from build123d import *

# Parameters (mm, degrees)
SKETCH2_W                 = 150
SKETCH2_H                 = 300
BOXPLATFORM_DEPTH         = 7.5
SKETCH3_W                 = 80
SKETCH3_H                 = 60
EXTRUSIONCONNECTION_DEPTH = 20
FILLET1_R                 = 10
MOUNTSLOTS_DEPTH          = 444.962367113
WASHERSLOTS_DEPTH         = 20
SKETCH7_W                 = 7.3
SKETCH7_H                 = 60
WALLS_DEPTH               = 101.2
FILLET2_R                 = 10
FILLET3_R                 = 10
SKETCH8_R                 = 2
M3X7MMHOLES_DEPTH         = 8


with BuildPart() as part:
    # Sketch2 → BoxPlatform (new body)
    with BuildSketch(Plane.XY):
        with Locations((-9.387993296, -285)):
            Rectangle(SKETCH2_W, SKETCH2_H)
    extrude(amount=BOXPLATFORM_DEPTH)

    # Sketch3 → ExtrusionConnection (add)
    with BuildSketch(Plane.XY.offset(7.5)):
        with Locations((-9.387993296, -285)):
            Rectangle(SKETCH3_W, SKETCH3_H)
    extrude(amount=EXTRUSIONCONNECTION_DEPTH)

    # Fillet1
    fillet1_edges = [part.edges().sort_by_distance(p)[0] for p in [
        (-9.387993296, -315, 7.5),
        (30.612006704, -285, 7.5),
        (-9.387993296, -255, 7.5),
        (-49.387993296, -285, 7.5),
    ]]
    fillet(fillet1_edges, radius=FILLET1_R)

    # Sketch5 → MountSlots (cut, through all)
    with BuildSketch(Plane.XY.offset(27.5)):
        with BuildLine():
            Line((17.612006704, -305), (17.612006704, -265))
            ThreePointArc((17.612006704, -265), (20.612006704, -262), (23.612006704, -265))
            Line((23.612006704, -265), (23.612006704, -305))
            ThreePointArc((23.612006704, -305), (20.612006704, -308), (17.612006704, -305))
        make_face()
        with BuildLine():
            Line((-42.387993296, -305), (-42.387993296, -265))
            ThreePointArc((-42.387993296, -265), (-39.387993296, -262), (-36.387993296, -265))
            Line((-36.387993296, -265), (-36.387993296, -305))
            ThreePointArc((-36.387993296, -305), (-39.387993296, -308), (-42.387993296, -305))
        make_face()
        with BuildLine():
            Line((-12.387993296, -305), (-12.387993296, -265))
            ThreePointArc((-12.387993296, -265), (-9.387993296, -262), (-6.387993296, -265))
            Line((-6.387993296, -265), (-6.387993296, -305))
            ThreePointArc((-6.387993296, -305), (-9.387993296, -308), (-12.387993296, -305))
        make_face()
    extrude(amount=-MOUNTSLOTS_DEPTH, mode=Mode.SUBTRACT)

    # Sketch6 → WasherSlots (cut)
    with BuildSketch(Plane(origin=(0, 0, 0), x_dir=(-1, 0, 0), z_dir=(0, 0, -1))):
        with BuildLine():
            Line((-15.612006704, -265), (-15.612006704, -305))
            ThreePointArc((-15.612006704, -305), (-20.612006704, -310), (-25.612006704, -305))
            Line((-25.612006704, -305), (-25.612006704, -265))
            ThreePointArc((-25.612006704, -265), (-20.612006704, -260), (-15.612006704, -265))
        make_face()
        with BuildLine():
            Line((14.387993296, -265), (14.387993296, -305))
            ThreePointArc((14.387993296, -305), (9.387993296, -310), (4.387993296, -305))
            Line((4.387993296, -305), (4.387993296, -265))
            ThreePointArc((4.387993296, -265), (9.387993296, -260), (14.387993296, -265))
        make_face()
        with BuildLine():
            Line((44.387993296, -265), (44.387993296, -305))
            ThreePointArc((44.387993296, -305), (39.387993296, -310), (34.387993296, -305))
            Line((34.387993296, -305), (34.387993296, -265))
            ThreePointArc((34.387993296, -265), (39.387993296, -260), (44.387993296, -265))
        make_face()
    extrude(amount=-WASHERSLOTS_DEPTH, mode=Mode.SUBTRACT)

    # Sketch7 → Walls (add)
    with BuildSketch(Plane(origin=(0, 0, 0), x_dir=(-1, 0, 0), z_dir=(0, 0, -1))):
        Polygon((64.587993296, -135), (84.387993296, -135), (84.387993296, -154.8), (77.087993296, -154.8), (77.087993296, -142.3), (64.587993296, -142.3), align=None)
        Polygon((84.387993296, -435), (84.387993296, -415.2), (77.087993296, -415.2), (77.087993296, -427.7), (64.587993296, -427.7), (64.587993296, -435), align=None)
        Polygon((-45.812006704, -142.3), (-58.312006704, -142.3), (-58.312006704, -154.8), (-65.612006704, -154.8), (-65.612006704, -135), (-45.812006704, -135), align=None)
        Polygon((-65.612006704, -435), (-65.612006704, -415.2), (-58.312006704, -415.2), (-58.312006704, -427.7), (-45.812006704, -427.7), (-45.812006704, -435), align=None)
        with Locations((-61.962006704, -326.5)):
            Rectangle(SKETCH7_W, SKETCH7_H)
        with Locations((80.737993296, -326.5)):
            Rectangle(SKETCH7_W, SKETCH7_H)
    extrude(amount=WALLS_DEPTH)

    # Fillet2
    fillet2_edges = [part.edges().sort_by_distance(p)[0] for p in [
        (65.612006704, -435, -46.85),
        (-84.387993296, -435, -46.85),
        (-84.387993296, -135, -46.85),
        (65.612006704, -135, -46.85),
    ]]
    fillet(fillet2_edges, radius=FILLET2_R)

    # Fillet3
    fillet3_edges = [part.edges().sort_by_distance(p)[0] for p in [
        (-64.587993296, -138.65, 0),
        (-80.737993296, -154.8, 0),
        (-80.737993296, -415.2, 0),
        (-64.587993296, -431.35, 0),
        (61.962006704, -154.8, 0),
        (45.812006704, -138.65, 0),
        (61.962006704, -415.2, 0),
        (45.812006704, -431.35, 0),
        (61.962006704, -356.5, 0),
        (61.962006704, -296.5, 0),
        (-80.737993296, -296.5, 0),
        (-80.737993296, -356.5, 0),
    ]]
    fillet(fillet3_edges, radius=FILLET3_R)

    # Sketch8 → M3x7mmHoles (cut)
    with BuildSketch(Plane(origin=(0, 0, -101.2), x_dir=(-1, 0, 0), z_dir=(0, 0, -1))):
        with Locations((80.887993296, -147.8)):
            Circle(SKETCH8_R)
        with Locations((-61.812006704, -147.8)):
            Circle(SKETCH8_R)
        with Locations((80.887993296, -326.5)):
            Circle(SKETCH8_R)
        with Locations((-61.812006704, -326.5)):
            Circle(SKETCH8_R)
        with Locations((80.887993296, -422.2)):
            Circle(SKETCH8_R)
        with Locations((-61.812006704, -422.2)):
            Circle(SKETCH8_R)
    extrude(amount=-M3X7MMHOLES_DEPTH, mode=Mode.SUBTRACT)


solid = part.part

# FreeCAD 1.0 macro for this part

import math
import FreeCAD as App
import Part
import Sketcher
Q = App.Units.Quantity


def edges_at(feature, points):
    """Names of the edges that pass closest to the given points."""
    edges = feature.Shape.Edges
    near = lambda p: min(range(len(edges)), key=lambda i: edges[i].distToShape(Part.Vertex(*p))[0])
    return sorted({f"Edge{near(p) + 1}" for p in points})

doc = App.newDocument("Part")
body = doc.addObject("PartDesign::Body", "Body")

sketch1 = body.newObject("Sketcher::SketchObject", "Sketch")
sketch1.AttachmentSupport = (doc.getObject("XY_Plane"), [""])
sketch1.MapMode = "FlatFace"
sketch1.addGeometry([
    Part.LineSegment(App.Vector(-84, -135, 0), App.Vector(-84, -435, 0)),
    Part.LineSegment(App.Vector(-84, -435, 0), App.Vector(66, -435, 0)),
    Part.LineSegment(App.Vector(66, -435, 0), App.Vector(66, -135, 0)),
    Part.LineSegment(App.Vector(66, -135, 0), App.Vector(-84, -135, 0)),
], False)
sketch1.addConstraint([
    Sketcher.Constraint("Coincident", 0, 2, 1, 1),
    Sketcher.Constraint("Coincident", 1, 2, 2, 1),
    Sketcher.Constraint("Coincident", 2, 2, 3, 1),
    Sketcher.Constraint("Coincident", 3, 2, 0, 1),
    Sketcher.Constraint("Vertical", 0),
    Sketcher.Constraint("Horizontal", 1),
    Sketcher.Constraint("Vertical", 2),
    Sketcher.Constraint("Horizontal", 3),
    Sketcher.Constraint("DistanceX", 1, 1, 1, 2, Q("150 mm")),
    Sketcher.Constraint("DistanceY", 0, 2, 0, 1, Q("300 mm")),
    Sketcher.Constraint("DistanceY", 0, 2, -1, 1, Q("435 mm")),
    Sketcher.Constraint("DistanceX", 0, 2, -1, 1, Q("84.387993 mm")),
])
pad1 = body.newObject("PartDesign::Pad", "Pad")
pad1.Profile = sketch1
pad1.Length = 7.5

sketch2 = body.newObject("Sketcher::SketchObject", "Sketch001")
sketch2.AttachmentSupport = (doc.getObject("XY_Plane"), [""])
sketch2.MapMode = "FlatFace"
sketch2.AttachmentOffset = App.Placement(App.Vector(0, 0, 7.5), App.Rotation())
sketch2.addGeometry([
    Part.LineSegment(App.Vector(-49, -255, 0), App.Vector(-49, -315, 0)),
    Part.LineSegment(App.Vector(-49, -315, 0), App.Vector(31, -315, 0)),
    Part.LineSegment(App.Vector(31, -315, 0), App.Vector(31, -255, 0)),
    Part.LineSegment(App.Vector(31, -255, 0), App.Vector(-49, -255, 0)),
], False)
sketch2.addConstraint([
    Sketcher.Constraint("Coincident", 0, 2, 1, 1),
    Sketcher.Constraint("Coincident", 1, 2, 2, 1),
    Sketcher.Constraint("Coincident", 2, 2, 3, 1),
    Sketcher.Constraint("Coincident", 3, 2, 0, 1),
    Sketcher.Constraint("Vertical", 0),
    Sketcher.Constraint("Horizontal", 1),
    Sketcher.Constraint("Vertical", 2),
    Sketcher.Constraint("Horizontal", 3),
    Sketcher.Constraint("DistanceX", 1, 1, 1, 2, Q("80 mm")),
    Sketcher.Constraint("DistanceY", 0, 2, 0, 1, Q("60 mm")),
    Sketcher.Constraint("DistanceY", 0, 2, -1, 1, Q("315 mm")),
    Sketcher.Constraint("DistanceX", 0, 2, -1, 1, Q("49.387993 mm")),
])
pad2 = body.newObject("PartDesign::Pad", "Pad001")
pad2.Profile = sketch2
pad2.Length = 20
doc.recompute()

fillet = body.newObject("PartDesign::Fillet", "Fillet")
fillet.Base = (pad2, edges_at(pad2, [
    (-9.388, -315, 7.5),
    (30.612, -285, 7.5),
    (-9.388, -255, 7.5),
    (-49.388, -285, 7.5),
]))
fillet.Radius = 10

sketch3 = body.newObject("Sketcher::SketchObject", "Sketch002")
sketch3.AttachmentSupport = (doc.getObject("XY_Plane"), [""])
sketch3.MapMode = "FlatFace"
sketch3.AttachmentOffset = App.Placement(App.Vector(0, 0, 27.5), App.Rotation())
sketch3.addGeometry([
    Part.LineSegment(App.Vector(17.6, -265, 0), App.Vector(17.6, -305, 0)),
    Part.ArcOfCircle(Part.Circle(App.Vector(20.6, -305, 0), App.Vector(0, 0, 1), 3), math.radians(180), math.radians(360)),
    Part.LineSegment(App.Vector(23.6, -305, 0), App.Vector(23.6, -265, 0)),
    Part.ArcOfCircle(Part.Circle(App.Vector(20.6, -265, 0), App.Vector(0, 0, 1), 3), math.radians(0), math.radians(180)),
    Part.LineSegment(App.Vector(-42.4, -265, 0), App.Vector(-42.4, -305, 0)),
    Part.ArcOfCircle(Part.Circle(App.Vector(-39.4, -305, 0), App.Vector(0, 0, 1), 3), math.radians(180), math.radians(360)),
    Part.LineSegment(App.Vector(-36.4, -305, 0), App.Vector(-36.4, -265, 0)),
    Part.ArcOfCircle(Part.Circle(App.Vector(-39.4, -265, 0), App.Vector(0, 0, 1), 3), math.radians(0), math.radians(180)),
    Part.LineSegment(App.Vector(-12.4, -265, 0), App.Vector(-12.4, -305, 0)),
    Part.ArcOfCircle(Part.Circle(App.Vector(-9.4, -305, 0), App.Vector(0, 0, 1), 3), math.radians(180), math.radians(360)),
    Part.LineSegment(App.Vector(-6.4, -305, 0), App.Vector(-6.4, -265, 0)),
    Part.ArcOfCircle(Part.Circle(App.Vector(-9.4, -265, 0), App.Vector(0, 0, 1), 3), math.radians(0), math.radians(180)),
], False)
sketch3.addConstraint([
    Sketcher.Constraint("Tangent", 0, 2, 1, 1),
    Sketcher.Constraint("Tangent", 1, 2, 2, 1),
    Sketcher.Constraint("Tangent", 2, 2, 3, 1),
    Sketcher.Constraint("Tangent", 3, 2, 0, 1),
    Sketcher.Constraint("Tangent", 4, 2, 5, 1),
    Sketcher.Constraint("Tangent", 5, 2, 6, 1),
    Sketcher.Constraint("Tangent", 6, 2, 7, 1),
    Sketcher.Constraint("Tangent", 7, 2, 4, 1),
    Sketcher.Constraint("Tangent", 8, 2, 9, 1),
    Sketcher.Constraint("Tangent", 9, 2, 10, 1),
    Sketcher.Constraint("Tangent", 10, 2, 11, 1),
    Sketcher.Constraint("Tangent", 11, 2, 8, 1),
    Sketcher.Constraint("Vertical", 0),
    Sketcher.Constraint("Vertical", 2),
    Sketcher.Constraint("Vertical", 4),
    Sketcher.Constraint("Vertical", 6),
    Sketcher.Constraint("Vertical", 8),
    Sketcher.Constraint("Vertical", 10),
    Sketcher.Constraint("Equal", 3, 5),
    Sketcher.Constraint("Equal", 7, 9),
    Sketcher.Constraint("Horizontal", 1, 3, 5, 3),
    Sketcher.Constraint("Horizontal", 3, 3, 7, 3),
    Sketcher.Constraint("Horizontal", 5, 3, 9, 3),
    Sketcher.Constraint("Horizontal", 7, 3, 11, 3),
    Sketcher.Constraint("Radius", 1, Q("3 mm")),
    Sketcher.Constraint("DistanceY", 0, 2, 0, 1, Q("40 mm")),
    Sketcher.Constraint("DistanceY", 1, 3, -1, 1, Q("305 mm")),
    Sketcher.Constraint("DistanceX", 5, 3, 1, 3, Q("60 mm")),
    Sketcher.Constraint("DistanceX", 9, 3, 1, 3, Q("30 mm")),
    Sketcher.Constraint("DistanceX", -1, 1, 1, 3, Q("20.612007 mm")),
])
pocket1 = body.newObject("PartDesign::Pocket", "Pocket")
pocket1.Profile = sketch3
pocket1.Type = "ThroughAll"

sketch4 = body.newObject("Sketcher::SketchObject", "Sketch003")
sketch4.AttachmentSupport = (doc.getObject("XY_Plane"), [""])
sketch4.MapMode = "FlatFace"
sketch4.addGeometry([
    Part.LineSegment(App.Vector(16, -305, 0), App.Vector(16, -265, 0)),
    Part.ArcOfCircle(Part.Circle(App.Vector(21, -265, 0), App.Vector(0, 0, 1), 5), math.radians(0), math.radians(180)),
    Part.LineSegment(App.Vector(26, -265, 0), App.Vector(26, -305, 0)),
    Part.ArcOfCircle(Part.Circle(App.Vector(21, -305, 0), App.Vector(0, 0, 1), 5), math.radians(180), math.radians(360)),
    Part.LineSegment(App.Vector(-14, -305, 0), App.Vector(-14, -265, 0)),
    Part.ArcOfCircle(Part.Circle(App.Vector(-9, -265, 0), App.Vector(0, 0, 1), 5), math.radians(0), math.radians(180)),
    Part.LineSegment(App.Vector(-4, -265, 0), App.Vector(-4, -305, 0)),
    Part.ArcOfCircle(Part.Circle(App.Vector(-9, -305, 0), App.Vector(0, 0, 1), 5), math.radians(180), math.radians(360)),
    Part.LineSegment(App.Vector(-44, -305, 0), App.Vector(-44, -265, 0)),
    Part.ArcOfCircle(Part.Circle(App.Vector(-39, -265, 0), App.Vector(0, 0, 1), 5), math.radians(0), math.radians(180)),
    Part.LineSegment(App.Vector(-34, -265, 0), App.Vector(-34, -305, 0)),
    Part.ArcOfCircle(Part.Circle(App.Vector(-39, -305, 0), App.Vector(0, 0, 1), 5), math.radians(180), math.radians(360)),
], False)
sketch4.addConstraint([
    Sketcher.Constraint("Tangent", 0, 2, 1, 2),
    Sketcher.Constraint("Tangent", 1, 1, 2, 1),
    Sketcher.Constraint("Tangent", 2, 2, 3, 2),
    Sketcher.Constraint("Tangent", 3, 1, 0, 1),
    Sketcher.Constraint("Tangent", 4, 2, 5, 2),
    Sketcher.Constraint("Tangent", 5, 1, 6, 1),
    Sketcher.Constraint("Tangent", 6, 2, 7, 2),
    Sketcher.Constraint("Tangent", 7, 1, 4, 1),
    Sketcher.Constraint("Tangent", 8, 2, 9, 2),
    Sketcher.Constraint("Tangent", 9, 1, 10, 1),
    Sketcher.Constraint("Tangent", 10, 2, 11, 2),
    Sketcher.Constraint("Tangent", 11, 1, 8, 1),
    Sketcher.Constraint("Vertical", 0),
    Sketcher.Constraint("Vertical", 2),
    Sketcher.Constraint("Vertical", 4),
    Sketcher.Constraint("Vertical", 6),
    Sketcher.Constraint("Vertical", 8),
    Sketcher.Constraint("Vertical", 10),
    Sketcher.Constraint("Equal", 3, 5),
    Sketcher.Constraint("Equal", 7, 9),
    Sketcher.Constraint("Horizontal", 1, 3, 5, 3),
    Sketcher.Constraint("Horizontal", 3, 3, 7, 3),
    Sketcher.Constraint("Horizontal", 5, 3, 9, 3),
    Sketcher.Constraint("Horizontal", 7, 3, 11, 3),
    Sketcher.Constraint("Radius", 1, Q("5 mm")),
    Sketcher.Constraint("DistanceY", 0, 1, 0, 2, Q("40 mm")),
    Sketcher.Constraint("DistanceY", 1, 3, -1, 1, Q("265 mm")),
    Sketcher.Constraint("DistanceX", 5, 3, 1, 3, Q("30 mm")),
    Sketcher.Constraint("DistanceX", 9, 3, 5, 3, Q("30 mm")),
    Sketcher.Constraint("DistanceX", -1, 1, 1, 3, Q("20.612007 mm")),
])
pocket2 = body.newObject("PartDesign::Pocket", "Pocket001")
pocket2.Profile = sketch4
pocket2.Length = 20
pocket2.Reversed = True

sketch5 = body.newObject("Sketcher::SketchObject", "Sketch004")
sketch5.AttachmentSupport = (doc.getObject("XY_Plane"), [""])
sketch5.MapMode = "FlatFace"
sketch5.addGeometry([
    Part.LineSegment(App.Vector(-84, -135, 0), App.Vector(-65, -135, 0)),
    Part.LineSegment(App.Vector(-65, -135, 0), App.Vector(-65, -142, 0)),
    Part.LineSegment(App.Vector(-65, -142, 0), App.Vector(-77, -142, 0)),
    Part.LineSegment(App.Vector(-77, -142, 0), App.Vector(-77, -155, 0)),
    Part.LineSegment(App.Vector(-77, -155, 0), App.Vector(-84, -155, 0)),
    Part.LineSegment(App.Vector(-84, -155, 0), App.Vector(-84, -135, 0)),
    Part.LineSegment(App.Vector(-84, -435, 0), App.Vector(-84, -415, 0)),
    Part.LineSegment(App.Vector(-84, -415, 0), App.Vector(-77, -415, 0)),
    Part.LineSegment(App.Vector(-77, -415, 0), App.Vector(-77, -428, 0)),
    Part.LineSegment(App.Vector(-77, -428, 0), App.Vector(-65, -428, 0)),
    Part.LineSegment(App.Vector(-65, -428, 0), App.Vector(-65, -435, 0)),
    Part.LineSegment(App.Vector(-65, -435, 0), App.Vector(-84, -435, 0)),
    Part.LineSegment(App.Vector(58, -142, 0), App.Vector(46, -142, 0)),
    Part.LineSegment(App.Vector(46, -142, 0), App.Vector(46, -135, 0)),
    Part.LineSegment(App.Vector(46, -135, 0), App.Vector(66, -135, 0)),
    Part.LineSegment(App.Vector(66, -135, 0), App.Vector(66, -155, 0)),
    Part.LineSegment(App.Vector(66, -155, 0), App.Vector(58, -155, 0)),
    Part.LineSegment(App.Vector(58, -155, 0), App.Vector(58, -142, 0)),
    Part.LineSegment(App.Vector(66, -415, 0), App.Vector(66, -435, 0)),
    Part.LineSegment(App.Vector(66, -435, 0), App.Vector(46, -435, 0)),
    Part.LineSegment(App.Vector(46, -435, 0), App.Vector(46, -428, 0)),
    Part.LineSegment(App.Vector(46, -428, 0), App.Vector(58, -428, 0)),
    Part.LineSegment(App.Vector(58, -428, 0), App.Vector(58, -415, 0)),
    Part.LineSegment(App.Vector(58, -415, 0), App.Vector(66, -415, 0)),
    Part.LineSegment(App.Vector(66, -296, 0), App.Vector(66, -356, 0)),
    Part.LineSegment(App.Vector(66, -356, 0), App.Vector(58, -356, 0)),
    Part.LineSegment(App.Vector(58, -356, 0), App.Vector(58, -296, 0)),
    Part.LineSegment(App.Vector(58, -296, 0), App.Vector(66, -296, 0)),
    Part.LineSegment(App.Vector(-77, -296, 0), App.Vector(-77, -356, 0)),
    Part.LineSegment(App.Vector(-77, -356, 0), App.Vector(-84, -356, 0)),
    Part.LineSegment(App.Vector(-84, -356, 0), App.Vector(-84, -296, 0)),
    Part.LineSegment(App.Vector(-84, -296, 0), App.Vector(-77, -296, 0)),
], False)
sketch5.addConstraint([
    Sketcher.Constraint("Coincident", 0, 2, 1, 1),
    Sketcher.Constraint("Coincident", 1, 2, 2, 1),
    Sketcher.Constraint("Coincident", 2, 2, 3, 1),
    Sketcher.Constraint("Coincident", 3, 2, 4, 1),
    Sketcher.Constraint("Coincident", 4, 2, 5, 1),
    Sketcher.Constraint("Coincident", 5, 2, 0, 1),
    Sketcher.Constraint("Coincident", 6, 2, 7, 1),
    Sketcher.Constraint("Coincident", 7, 2, 8, 1),
    Sketcher.Constraint("Coincident", 8, 2, 9, 1),
    Sketcher.Constraint("Coincident", 9, 2, 10, 1),
    Sketcher.Constraint("Coincident", 10, 2, 11, 1),
    Sketcher.Constraint("Coincident", 11, 2, 6, 1),
    Sketcher.Constraint("Coincident", 12, 2, 13, 1),
    Sketcher.Constraint("Coincident", 13, 2, 14, 1),
    Sketcher.Constraint("Coincident", 14, 2, 15, 1),
    Sketcher.Constraint("Coincident", 15, 2, 16, 1),
    Sketcher.Constraint("Coincident", 16, 2, 17, 1),
    Sketcher.Constraint("Coincident", 17, 2, 12, 1),
    Sketcher.Constraint("Coincident", 18, 2, 19, 1),
    Sketcher.Constraint("Coincident", 19, 2, 20, 1),
    Sketcher.Constraint("Coincident", 20, 2, 21, 1),
    Sketcher.Constraint("Coincident", 21, 2, 22, 1),
    Sketcher.Constraint("Coincident", 22, 2, 23, 1),
    Sketcher.Constraint("Coincident", 23, 2, 18, 1),
    Sketcher.Constraint("Coincident", 24, 2, 25, 1),
    Sketcher.Constraint("Coincident", 25, 2, 26, 1),
    Sketcher.Constraint("Coincident", 26, 2, 27, 1),
    Sketcher.Constraint("Coincident", 27, 2, 24, 1),
    Sketcher.Constraint("Coincident", 28, 2, 29, 1),
    Sketcher.Constraint("Coincident", 29, 2, 30, 1),
    Sketcher.Constraint("Coincident", 30, 2, 31, 1),
    Sketcher.Constraint("Coincident", 31, 2, 28, 1),
    Sketcher.Constraint("Horizontal", 0),
    Sketcher.Constraint("Vertical", 1),
    Sketcher.Constraint("Horizontal", 2),
    Sketcher.Constraint("Vertical", 3),
    Sketcher.Constraint("Horizontal", 4),
    Sketcher.Constraint("Vertical", 5),
    Sketcher.Constraint("Vertical", 6),
    Sketcher.Constraint("Horizontal", 7),
    Sketcher.Constraint("Vertical", 8),
    Sketcher.Constraint("Horizontal", 9),
    Sketcher.Constraint("Vertical", 10),
    Sketcher.Constraint("Horizontal", 11),
    Sketcher.Constraint("Horizontal", 12),
    Sketcher.Constraint("Vertical", 13),
    Sketcher.Constraint("Horizontal", 14),
    Sketcher.Constraint("Vertical", 15),
    Sketcher.Constraint("Horizontal", 16),
    Sketcher.Constraint("Vertical", 17),
    Sketcher.Constraint("Vertical", 18),
    Sketcher.Constraint("Horizontal", 19),
    Sketcher.Constraint("Vertical", 20),
    Sketcher.Constraint("Horizontal", 21),
    Sketcher.Constraint("Vertical", 22),
    Sketcher.Constraint("Horizontal", 23),
    Sketcher.Constraint("Vertical", 24),
    Sketcher.Constraint("Horizontal", 25),
    Sketcher.Constraint("Vertical", 26),
    Sketcher.Constraint("Horizontal", 27),
    Sketcher.Constraint("Vertical", 28),
    Sketcher.Constraint("Horizontal", 29),
    Sketcher.Constraint("Vertical", 30),
    Sketcher.Constraint("Horizontal", 31),
    Sketcher.Constraint("Horizontal", 2, 2, 12, 2),
    Sketcher.Constraint("Horizontal", 5, 2, 13, 2),
    Sketcher.Constraint("Horizontal", 4, 2, 15, 2),
    Sketcher.Constraint("Horizontal", 11, 2, 18, 2),
    Sketcher.Constraint("Horizontal", 9, 2, 20, 2),
    Sketcher.Constraint("Horizontal", 7, 2, 22, 2),
    Sketcher.Constraint("Horizontal", 25, 2, 28, 2),
    Sketcher.Constraint("Horizontal", 27, 2, 30, 2),
    Sketcher.Constraint("Vertical", 5, 2, 6, 2),
    Sketcher.Constraint("Vertical", 3, 2, 7, 2),
    Sketcher.Constraint("Vertical", 1, 2, 9, 2),
    Sketcher.Constraint("Vertical", 15, 2, 18, 2),
    Sketcher.Constraint("Vertical", 13, 2, 19, 2),
    Sketcher.Constraint("Vertical", 17, 2, 21, 2),
    Sketcher.Constraint("Vertical", 23, 2, 24, 2),
    Sketcher.Constraint("Vertical", 22, 2, 25, 2),
    Sketcher.Constraint("Vertical", 8, 2, 28, 2),
    Sketcher.Constraint("Vertical", 11, 2, 29, 2),
    Sketcher.Constraint("Equal", 9, 12),
    Sketcher.Constraint("Equal", 11, 14),
    Sketcher.Constraint("Equal", 31, 1),
    Sketcher.Constraint("Equal", 21, 3),
    Sketcher.Constraint("Equal", 5, 6),
    Sketcher.Constraint("Equal", 3, 8),
    Sketcher.Constraint("DistanceY", 24, 2, 24, 1, Q("60 mm")),
    Sketcher.Constraint("DistanceX", 0, 1, 0, 2, Q("19.8 mm")),
    Sketcher.Constraint("DistanceX", 2, 2, 2, 1, Q("12.5 mm")),
    Sketcher.Constraint("DistanceY", 0, 2, -1, 1, Q("135 mm")),
    Sketcher.Constraint("DistanceY", 10, 2, -1, 1, Q("435 mm")),
    Sketcher.Constraint("DistanceX", 11, 2, 18, 2, Q("150 mm")),
    Sketcher.Constraint("DistanceY", 24, 2, -1, 1, Q("356.5 mm")),
    Sketcher.Constraint("DistanceX", 0, 2, -1, 1, Q("64.587993 mm")),
])
pad3 = body.newObject("PartDesign::Pad", "Pad002")
pad3.Profile = sketch5
pad3.Length = 101.2
pad3.Reversed = True
doc.recompute()

fillet2 = body.newObject("PartDesign::Fillet", "Fillet001")
fillet2.Base = (pad3, edges_at(pad3, [
    (65.612, -435, -46.85),
    (-84.388, -435, -46.85),
    (-84.388, -135, -46.85),
    (65.612, -135, -46.85),
]))
fillet2.Radius = 10
doc.recompute()

fillet3 = body.newObject("PartDesign::Fillet", "Fillet002")
fillet3.Base = (fillet2, edges_at(fillet2, [
    (-64.588, -138.65, 0),
    (-80.738, -154.8, 0),
    (-80.738, -415.2, 0),
    (-64.588, -431.35, 0),
    (61.962, -154.8, 0),
    (45.812, -138.65, 0),
    (61.962, -415.2, 0),
    (45.812, -431.35, 0),
    (61.962, -356.5, 0),
    (61.962, -296.5, 0),
    (-80.738, -296.5, 0),
    (-80.738, -356.5, 0),
]))
fillet3.Radius = 10

sketch6 = body.newObject("Sketcher::SketchObject", "Sketch005")
sketch6.AttachmentSupport = (doc.getObject("XY_Plane"), [""])
sketch6.MapMode = "FlatFace"
sketch6.AttachmentOffset = App.Placement(App.Vector(0, 0, -101.2), App.Rotation())
sketch6.addGeometry([
    Part.Circle(App.Vector(-80.9, -147.8, 0), App.Vector(0, 0, 1), 2),
    Part.Circle(App.Vector(61.8, -147.8, 0), App.Vector(0, 0, 1), 2),
    Part.Circle(App.Vector(-80.9, -326.5, 0), App.Vector(0, 0, 1), 2),
    Part.Circle(App.Vector(61.8, -326.5, 0), App.Vector(0, 0, 1), 2),
    Part.Circle(App.Vector(-80.9, -422.2, 0), App.Vector(0, 0, 1), 2),
    Part.Circle(App.Vector(61.8, -422.2, 0), App.Vector(0, 0, 1), 2),
], False)
sketch6.addConstraint([
    Sketcher.Constraint("Equal", 0, 1),
    Sketcher.Constraint("Equal", 1, 2),
    Sketcher.Constraint("Equal", 2, 3),
    Sketcher.Constraint("Equal", 3, 4),
    Sketcher.Constraint("Equal", 4, 5),
    Sketcher.Constraint("Horizontal", 0, 3, 1, 3),
    Sketcher.Constraint("Horizontal", 2, 3, 3, 3),
    Sketcher.Constraint("Horizontal", 4, 3, 5, 3),
    Sketcher.Constraint("Vertical", 0, 3, 2, 3),
    Sketcher.Constraint("Vertical", 1, 3, 3, 3),
    Sketcher.Constraint("Vertical", 2, 3, 4, 3),
    Sketcher.Constraint("Vertical", 3, 3, 5, 3),
    Sketcher.Constraint("Diameter", 0, Q("4 mm")),
    Sketcher.Constraint("DistanceY", 0, 3, -1, 1, Q("147.8 mm")),
    Sketcher.Constraint("DistanceY", 2, 3, -1, 1, Q("326.5 mm")),
    Sketcher.Constraint("DistanceY", 4, 3, -1, 1, Q("422.2 mm")),
    Sketcher.Constraint("DistanceX", 0, 3, 1, 3, Q("142.7 mm")),
    Sketcher.Constraint("DistanceX", 0, 3, -1, 1, Q("80.887993 mm")),
])
pocket3 = body.newObject("PartDesign::Pocket", "Pocket002")
pocket3.Profile = sketch6
pocket3.Length = 8
pocket3.Reversed = True

doc.recompute()
